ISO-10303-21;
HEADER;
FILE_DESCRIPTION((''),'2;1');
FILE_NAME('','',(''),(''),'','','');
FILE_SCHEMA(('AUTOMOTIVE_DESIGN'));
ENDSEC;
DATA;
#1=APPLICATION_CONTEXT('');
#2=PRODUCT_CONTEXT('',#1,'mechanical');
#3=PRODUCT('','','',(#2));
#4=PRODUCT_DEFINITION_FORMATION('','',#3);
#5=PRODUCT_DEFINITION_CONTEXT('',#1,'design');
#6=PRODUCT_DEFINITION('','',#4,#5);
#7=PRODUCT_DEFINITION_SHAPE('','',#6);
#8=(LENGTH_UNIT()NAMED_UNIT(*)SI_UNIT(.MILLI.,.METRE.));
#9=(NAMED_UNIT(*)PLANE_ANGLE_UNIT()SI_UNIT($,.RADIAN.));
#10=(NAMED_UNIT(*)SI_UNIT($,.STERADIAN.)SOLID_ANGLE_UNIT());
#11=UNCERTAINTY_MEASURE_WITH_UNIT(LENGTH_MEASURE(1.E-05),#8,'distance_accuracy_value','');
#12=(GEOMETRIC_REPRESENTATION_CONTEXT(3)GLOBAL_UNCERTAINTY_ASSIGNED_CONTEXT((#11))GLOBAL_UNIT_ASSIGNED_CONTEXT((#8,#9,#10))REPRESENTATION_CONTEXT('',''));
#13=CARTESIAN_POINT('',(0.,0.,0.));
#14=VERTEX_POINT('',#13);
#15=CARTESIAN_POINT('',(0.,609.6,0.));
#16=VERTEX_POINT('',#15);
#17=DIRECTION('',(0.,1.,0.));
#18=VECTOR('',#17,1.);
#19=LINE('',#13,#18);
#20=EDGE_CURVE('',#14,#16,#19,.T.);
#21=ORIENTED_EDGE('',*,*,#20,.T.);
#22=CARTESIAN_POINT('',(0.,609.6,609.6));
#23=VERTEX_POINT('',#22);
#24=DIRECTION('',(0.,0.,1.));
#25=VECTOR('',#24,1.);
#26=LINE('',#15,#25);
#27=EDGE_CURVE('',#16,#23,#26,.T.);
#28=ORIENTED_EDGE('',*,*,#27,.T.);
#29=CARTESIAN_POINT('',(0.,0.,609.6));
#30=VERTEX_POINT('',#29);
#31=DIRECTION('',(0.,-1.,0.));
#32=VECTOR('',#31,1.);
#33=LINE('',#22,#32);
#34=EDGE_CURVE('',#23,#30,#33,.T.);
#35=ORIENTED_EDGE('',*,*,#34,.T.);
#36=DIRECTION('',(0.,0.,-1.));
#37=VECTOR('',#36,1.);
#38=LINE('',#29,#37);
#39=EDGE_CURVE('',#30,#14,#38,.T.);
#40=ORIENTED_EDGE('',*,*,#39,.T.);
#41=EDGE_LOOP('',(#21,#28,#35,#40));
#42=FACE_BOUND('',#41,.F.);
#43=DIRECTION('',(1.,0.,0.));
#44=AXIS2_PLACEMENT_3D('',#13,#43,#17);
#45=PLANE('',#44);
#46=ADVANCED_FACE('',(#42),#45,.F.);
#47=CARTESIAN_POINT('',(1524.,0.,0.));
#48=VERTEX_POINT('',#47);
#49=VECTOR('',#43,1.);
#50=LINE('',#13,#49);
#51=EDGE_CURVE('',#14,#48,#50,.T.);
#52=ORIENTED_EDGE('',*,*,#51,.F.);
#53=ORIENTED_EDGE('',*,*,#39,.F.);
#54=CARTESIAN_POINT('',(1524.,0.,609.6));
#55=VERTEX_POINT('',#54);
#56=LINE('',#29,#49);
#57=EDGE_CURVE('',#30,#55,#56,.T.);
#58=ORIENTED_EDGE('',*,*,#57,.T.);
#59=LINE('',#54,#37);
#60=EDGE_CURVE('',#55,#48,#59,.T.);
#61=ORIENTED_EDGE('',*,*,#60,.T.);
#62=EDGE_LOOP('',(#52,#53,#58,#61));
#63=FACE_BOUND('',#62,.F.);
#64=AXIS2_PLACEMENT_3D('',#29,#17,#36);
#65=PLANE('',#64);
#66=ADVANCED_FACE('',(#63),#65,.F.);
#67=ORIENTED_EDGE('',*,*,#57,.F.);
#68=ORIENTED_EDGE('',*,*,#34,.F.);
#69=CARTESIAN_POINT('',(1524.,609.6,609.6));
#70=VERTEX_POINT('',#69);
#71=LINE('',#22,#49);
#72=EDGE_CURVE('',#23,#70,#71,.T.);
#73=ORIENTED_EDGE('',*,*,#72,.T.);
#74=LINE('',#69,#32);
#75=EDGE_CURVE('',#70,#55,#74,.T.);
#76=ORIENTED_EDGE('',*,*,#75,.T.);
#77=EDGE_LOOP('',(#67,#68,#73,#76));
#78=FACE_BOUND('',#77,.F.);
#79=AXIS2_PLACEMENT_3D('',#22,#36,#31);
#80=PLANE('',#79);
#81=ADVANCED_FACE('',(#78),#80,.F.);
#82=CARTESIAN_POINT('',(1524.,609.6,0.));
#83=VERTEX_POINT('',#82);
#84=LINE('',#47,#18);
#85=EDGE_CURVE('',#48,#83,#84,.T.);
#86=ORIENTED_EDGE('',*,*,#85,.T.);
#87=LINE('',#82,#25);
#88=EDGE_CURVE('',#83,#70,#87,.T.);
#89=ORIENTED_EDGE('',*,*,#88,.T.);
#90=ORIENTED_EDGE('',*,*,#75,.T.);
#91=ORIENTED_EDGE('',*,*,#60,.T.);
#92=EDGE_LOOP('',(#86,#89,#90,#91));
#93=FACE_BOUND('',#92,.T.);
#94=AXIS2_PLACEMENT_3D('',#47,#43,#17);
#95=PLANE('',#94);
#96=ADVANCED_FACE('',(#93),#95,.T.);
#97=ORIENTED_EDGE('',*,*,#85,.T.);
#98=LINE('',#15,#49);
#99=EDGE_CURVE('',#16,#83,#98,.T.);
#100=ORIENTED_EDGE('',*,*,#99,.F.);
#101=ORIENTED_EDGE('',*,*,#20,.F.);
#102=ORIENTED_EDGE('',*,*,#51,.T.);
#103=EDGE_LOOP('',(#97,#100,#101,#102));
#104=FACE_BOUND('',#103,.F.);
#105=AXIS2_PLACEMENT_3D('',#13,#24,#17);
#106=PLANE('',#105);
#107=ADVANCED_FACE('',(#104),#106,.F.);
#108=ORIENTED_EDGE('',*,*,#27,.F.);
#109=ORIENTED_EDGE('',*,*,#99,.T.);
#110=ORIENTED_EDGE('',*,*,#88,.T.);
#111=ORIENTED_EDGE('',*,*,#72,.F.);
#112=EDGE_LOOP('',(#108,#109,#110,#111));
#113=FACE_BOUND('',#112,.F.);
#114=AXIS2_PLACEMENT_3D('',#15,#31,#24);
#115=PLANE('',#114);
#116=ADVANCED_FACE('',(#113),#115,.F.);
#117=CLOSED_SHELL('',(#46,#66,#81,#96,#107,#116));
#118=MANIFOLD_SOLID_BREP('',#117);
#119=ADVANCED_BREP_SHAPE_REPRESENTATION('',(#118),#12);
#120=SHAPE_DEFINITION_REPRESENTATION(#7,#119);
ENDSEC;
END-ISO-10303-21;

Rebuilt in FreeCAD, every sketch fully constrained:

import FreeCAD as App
import Part
import Sketcher
from FreeCAD import Vector
Q = App.Units.Quantity

doc = App.newDocument("Part")
params = doc.addObject("Spreadsheet::Sheet", "Params")
for row, (alias, value) in enumerate([
    ("sketch1_width", "24 in"),
    ("pad1_length", "60 in"),
], start=1):
    params.set(f"A{row}", alias)
    params.set(f"B{row}", "=" + value)
    params.setAlias(f"B{row}", alias)

body = doc.addObject("PartDesign::Body", "Body")

# Sketch on YZ plane
sketch1 = body.newObject("Sketcher::SketchObject", "Sketch")
sketch1.AttachmentSupport = (doc.getObject("YZ_Plane"), [""])
sketch1.MapMode = "FlatFace"
sketch1.addGeometry([
    Part.LineSegment(Vector(0, 610, 0), Vector(0, 0, 0)),
    Part.LineSegment(Vector(0, 0, 0), Vector(610, 0, 0)),
    Part.LineSegment(Vector(610, 0, 0), Vector(610, 610, 0)),
    Part.LineSegment(Vector(610, 610, 0), Vector(0, 610, 0)),
], False)
sketch1.addConstraint([
    Sketcher.Constraint("Coincident", 0, 2, 1, 1),
    Sketcher.Constraint("Coincident", 1, 2, 2, 1),
    Sketcher.Constraint("Coincident", 2, 2, 3, 1),
    Sketcher.Constraint("Coincident", 3, 2, 0, 1),
    Sketcher.Constraint("Vertical", 0),
    Sketcher.Constraint("Horizontal", 1),
    Sketcher.Constraint("Vertical", 2),
    Sketcher.Constraint("Horizontal", 3),
    Sketcher.Constraint("Coincident", 0, 2, -1, 1),
    Sketcher.Constraint("Equal", 3, 0),
    Sketcher.Constraint("DistanceX", 1, 1, 1, 2, Q("24 in")),
])
sketch1.setExpression("Constraints[10]", "Params.sketch1_width")
pad1 = body.newObject("PartDesign::Pad", "Pad")
pad1.Profile = sketch1
pad1.setExpression("Length", "Params.pad1_length")

doc.recompute()
